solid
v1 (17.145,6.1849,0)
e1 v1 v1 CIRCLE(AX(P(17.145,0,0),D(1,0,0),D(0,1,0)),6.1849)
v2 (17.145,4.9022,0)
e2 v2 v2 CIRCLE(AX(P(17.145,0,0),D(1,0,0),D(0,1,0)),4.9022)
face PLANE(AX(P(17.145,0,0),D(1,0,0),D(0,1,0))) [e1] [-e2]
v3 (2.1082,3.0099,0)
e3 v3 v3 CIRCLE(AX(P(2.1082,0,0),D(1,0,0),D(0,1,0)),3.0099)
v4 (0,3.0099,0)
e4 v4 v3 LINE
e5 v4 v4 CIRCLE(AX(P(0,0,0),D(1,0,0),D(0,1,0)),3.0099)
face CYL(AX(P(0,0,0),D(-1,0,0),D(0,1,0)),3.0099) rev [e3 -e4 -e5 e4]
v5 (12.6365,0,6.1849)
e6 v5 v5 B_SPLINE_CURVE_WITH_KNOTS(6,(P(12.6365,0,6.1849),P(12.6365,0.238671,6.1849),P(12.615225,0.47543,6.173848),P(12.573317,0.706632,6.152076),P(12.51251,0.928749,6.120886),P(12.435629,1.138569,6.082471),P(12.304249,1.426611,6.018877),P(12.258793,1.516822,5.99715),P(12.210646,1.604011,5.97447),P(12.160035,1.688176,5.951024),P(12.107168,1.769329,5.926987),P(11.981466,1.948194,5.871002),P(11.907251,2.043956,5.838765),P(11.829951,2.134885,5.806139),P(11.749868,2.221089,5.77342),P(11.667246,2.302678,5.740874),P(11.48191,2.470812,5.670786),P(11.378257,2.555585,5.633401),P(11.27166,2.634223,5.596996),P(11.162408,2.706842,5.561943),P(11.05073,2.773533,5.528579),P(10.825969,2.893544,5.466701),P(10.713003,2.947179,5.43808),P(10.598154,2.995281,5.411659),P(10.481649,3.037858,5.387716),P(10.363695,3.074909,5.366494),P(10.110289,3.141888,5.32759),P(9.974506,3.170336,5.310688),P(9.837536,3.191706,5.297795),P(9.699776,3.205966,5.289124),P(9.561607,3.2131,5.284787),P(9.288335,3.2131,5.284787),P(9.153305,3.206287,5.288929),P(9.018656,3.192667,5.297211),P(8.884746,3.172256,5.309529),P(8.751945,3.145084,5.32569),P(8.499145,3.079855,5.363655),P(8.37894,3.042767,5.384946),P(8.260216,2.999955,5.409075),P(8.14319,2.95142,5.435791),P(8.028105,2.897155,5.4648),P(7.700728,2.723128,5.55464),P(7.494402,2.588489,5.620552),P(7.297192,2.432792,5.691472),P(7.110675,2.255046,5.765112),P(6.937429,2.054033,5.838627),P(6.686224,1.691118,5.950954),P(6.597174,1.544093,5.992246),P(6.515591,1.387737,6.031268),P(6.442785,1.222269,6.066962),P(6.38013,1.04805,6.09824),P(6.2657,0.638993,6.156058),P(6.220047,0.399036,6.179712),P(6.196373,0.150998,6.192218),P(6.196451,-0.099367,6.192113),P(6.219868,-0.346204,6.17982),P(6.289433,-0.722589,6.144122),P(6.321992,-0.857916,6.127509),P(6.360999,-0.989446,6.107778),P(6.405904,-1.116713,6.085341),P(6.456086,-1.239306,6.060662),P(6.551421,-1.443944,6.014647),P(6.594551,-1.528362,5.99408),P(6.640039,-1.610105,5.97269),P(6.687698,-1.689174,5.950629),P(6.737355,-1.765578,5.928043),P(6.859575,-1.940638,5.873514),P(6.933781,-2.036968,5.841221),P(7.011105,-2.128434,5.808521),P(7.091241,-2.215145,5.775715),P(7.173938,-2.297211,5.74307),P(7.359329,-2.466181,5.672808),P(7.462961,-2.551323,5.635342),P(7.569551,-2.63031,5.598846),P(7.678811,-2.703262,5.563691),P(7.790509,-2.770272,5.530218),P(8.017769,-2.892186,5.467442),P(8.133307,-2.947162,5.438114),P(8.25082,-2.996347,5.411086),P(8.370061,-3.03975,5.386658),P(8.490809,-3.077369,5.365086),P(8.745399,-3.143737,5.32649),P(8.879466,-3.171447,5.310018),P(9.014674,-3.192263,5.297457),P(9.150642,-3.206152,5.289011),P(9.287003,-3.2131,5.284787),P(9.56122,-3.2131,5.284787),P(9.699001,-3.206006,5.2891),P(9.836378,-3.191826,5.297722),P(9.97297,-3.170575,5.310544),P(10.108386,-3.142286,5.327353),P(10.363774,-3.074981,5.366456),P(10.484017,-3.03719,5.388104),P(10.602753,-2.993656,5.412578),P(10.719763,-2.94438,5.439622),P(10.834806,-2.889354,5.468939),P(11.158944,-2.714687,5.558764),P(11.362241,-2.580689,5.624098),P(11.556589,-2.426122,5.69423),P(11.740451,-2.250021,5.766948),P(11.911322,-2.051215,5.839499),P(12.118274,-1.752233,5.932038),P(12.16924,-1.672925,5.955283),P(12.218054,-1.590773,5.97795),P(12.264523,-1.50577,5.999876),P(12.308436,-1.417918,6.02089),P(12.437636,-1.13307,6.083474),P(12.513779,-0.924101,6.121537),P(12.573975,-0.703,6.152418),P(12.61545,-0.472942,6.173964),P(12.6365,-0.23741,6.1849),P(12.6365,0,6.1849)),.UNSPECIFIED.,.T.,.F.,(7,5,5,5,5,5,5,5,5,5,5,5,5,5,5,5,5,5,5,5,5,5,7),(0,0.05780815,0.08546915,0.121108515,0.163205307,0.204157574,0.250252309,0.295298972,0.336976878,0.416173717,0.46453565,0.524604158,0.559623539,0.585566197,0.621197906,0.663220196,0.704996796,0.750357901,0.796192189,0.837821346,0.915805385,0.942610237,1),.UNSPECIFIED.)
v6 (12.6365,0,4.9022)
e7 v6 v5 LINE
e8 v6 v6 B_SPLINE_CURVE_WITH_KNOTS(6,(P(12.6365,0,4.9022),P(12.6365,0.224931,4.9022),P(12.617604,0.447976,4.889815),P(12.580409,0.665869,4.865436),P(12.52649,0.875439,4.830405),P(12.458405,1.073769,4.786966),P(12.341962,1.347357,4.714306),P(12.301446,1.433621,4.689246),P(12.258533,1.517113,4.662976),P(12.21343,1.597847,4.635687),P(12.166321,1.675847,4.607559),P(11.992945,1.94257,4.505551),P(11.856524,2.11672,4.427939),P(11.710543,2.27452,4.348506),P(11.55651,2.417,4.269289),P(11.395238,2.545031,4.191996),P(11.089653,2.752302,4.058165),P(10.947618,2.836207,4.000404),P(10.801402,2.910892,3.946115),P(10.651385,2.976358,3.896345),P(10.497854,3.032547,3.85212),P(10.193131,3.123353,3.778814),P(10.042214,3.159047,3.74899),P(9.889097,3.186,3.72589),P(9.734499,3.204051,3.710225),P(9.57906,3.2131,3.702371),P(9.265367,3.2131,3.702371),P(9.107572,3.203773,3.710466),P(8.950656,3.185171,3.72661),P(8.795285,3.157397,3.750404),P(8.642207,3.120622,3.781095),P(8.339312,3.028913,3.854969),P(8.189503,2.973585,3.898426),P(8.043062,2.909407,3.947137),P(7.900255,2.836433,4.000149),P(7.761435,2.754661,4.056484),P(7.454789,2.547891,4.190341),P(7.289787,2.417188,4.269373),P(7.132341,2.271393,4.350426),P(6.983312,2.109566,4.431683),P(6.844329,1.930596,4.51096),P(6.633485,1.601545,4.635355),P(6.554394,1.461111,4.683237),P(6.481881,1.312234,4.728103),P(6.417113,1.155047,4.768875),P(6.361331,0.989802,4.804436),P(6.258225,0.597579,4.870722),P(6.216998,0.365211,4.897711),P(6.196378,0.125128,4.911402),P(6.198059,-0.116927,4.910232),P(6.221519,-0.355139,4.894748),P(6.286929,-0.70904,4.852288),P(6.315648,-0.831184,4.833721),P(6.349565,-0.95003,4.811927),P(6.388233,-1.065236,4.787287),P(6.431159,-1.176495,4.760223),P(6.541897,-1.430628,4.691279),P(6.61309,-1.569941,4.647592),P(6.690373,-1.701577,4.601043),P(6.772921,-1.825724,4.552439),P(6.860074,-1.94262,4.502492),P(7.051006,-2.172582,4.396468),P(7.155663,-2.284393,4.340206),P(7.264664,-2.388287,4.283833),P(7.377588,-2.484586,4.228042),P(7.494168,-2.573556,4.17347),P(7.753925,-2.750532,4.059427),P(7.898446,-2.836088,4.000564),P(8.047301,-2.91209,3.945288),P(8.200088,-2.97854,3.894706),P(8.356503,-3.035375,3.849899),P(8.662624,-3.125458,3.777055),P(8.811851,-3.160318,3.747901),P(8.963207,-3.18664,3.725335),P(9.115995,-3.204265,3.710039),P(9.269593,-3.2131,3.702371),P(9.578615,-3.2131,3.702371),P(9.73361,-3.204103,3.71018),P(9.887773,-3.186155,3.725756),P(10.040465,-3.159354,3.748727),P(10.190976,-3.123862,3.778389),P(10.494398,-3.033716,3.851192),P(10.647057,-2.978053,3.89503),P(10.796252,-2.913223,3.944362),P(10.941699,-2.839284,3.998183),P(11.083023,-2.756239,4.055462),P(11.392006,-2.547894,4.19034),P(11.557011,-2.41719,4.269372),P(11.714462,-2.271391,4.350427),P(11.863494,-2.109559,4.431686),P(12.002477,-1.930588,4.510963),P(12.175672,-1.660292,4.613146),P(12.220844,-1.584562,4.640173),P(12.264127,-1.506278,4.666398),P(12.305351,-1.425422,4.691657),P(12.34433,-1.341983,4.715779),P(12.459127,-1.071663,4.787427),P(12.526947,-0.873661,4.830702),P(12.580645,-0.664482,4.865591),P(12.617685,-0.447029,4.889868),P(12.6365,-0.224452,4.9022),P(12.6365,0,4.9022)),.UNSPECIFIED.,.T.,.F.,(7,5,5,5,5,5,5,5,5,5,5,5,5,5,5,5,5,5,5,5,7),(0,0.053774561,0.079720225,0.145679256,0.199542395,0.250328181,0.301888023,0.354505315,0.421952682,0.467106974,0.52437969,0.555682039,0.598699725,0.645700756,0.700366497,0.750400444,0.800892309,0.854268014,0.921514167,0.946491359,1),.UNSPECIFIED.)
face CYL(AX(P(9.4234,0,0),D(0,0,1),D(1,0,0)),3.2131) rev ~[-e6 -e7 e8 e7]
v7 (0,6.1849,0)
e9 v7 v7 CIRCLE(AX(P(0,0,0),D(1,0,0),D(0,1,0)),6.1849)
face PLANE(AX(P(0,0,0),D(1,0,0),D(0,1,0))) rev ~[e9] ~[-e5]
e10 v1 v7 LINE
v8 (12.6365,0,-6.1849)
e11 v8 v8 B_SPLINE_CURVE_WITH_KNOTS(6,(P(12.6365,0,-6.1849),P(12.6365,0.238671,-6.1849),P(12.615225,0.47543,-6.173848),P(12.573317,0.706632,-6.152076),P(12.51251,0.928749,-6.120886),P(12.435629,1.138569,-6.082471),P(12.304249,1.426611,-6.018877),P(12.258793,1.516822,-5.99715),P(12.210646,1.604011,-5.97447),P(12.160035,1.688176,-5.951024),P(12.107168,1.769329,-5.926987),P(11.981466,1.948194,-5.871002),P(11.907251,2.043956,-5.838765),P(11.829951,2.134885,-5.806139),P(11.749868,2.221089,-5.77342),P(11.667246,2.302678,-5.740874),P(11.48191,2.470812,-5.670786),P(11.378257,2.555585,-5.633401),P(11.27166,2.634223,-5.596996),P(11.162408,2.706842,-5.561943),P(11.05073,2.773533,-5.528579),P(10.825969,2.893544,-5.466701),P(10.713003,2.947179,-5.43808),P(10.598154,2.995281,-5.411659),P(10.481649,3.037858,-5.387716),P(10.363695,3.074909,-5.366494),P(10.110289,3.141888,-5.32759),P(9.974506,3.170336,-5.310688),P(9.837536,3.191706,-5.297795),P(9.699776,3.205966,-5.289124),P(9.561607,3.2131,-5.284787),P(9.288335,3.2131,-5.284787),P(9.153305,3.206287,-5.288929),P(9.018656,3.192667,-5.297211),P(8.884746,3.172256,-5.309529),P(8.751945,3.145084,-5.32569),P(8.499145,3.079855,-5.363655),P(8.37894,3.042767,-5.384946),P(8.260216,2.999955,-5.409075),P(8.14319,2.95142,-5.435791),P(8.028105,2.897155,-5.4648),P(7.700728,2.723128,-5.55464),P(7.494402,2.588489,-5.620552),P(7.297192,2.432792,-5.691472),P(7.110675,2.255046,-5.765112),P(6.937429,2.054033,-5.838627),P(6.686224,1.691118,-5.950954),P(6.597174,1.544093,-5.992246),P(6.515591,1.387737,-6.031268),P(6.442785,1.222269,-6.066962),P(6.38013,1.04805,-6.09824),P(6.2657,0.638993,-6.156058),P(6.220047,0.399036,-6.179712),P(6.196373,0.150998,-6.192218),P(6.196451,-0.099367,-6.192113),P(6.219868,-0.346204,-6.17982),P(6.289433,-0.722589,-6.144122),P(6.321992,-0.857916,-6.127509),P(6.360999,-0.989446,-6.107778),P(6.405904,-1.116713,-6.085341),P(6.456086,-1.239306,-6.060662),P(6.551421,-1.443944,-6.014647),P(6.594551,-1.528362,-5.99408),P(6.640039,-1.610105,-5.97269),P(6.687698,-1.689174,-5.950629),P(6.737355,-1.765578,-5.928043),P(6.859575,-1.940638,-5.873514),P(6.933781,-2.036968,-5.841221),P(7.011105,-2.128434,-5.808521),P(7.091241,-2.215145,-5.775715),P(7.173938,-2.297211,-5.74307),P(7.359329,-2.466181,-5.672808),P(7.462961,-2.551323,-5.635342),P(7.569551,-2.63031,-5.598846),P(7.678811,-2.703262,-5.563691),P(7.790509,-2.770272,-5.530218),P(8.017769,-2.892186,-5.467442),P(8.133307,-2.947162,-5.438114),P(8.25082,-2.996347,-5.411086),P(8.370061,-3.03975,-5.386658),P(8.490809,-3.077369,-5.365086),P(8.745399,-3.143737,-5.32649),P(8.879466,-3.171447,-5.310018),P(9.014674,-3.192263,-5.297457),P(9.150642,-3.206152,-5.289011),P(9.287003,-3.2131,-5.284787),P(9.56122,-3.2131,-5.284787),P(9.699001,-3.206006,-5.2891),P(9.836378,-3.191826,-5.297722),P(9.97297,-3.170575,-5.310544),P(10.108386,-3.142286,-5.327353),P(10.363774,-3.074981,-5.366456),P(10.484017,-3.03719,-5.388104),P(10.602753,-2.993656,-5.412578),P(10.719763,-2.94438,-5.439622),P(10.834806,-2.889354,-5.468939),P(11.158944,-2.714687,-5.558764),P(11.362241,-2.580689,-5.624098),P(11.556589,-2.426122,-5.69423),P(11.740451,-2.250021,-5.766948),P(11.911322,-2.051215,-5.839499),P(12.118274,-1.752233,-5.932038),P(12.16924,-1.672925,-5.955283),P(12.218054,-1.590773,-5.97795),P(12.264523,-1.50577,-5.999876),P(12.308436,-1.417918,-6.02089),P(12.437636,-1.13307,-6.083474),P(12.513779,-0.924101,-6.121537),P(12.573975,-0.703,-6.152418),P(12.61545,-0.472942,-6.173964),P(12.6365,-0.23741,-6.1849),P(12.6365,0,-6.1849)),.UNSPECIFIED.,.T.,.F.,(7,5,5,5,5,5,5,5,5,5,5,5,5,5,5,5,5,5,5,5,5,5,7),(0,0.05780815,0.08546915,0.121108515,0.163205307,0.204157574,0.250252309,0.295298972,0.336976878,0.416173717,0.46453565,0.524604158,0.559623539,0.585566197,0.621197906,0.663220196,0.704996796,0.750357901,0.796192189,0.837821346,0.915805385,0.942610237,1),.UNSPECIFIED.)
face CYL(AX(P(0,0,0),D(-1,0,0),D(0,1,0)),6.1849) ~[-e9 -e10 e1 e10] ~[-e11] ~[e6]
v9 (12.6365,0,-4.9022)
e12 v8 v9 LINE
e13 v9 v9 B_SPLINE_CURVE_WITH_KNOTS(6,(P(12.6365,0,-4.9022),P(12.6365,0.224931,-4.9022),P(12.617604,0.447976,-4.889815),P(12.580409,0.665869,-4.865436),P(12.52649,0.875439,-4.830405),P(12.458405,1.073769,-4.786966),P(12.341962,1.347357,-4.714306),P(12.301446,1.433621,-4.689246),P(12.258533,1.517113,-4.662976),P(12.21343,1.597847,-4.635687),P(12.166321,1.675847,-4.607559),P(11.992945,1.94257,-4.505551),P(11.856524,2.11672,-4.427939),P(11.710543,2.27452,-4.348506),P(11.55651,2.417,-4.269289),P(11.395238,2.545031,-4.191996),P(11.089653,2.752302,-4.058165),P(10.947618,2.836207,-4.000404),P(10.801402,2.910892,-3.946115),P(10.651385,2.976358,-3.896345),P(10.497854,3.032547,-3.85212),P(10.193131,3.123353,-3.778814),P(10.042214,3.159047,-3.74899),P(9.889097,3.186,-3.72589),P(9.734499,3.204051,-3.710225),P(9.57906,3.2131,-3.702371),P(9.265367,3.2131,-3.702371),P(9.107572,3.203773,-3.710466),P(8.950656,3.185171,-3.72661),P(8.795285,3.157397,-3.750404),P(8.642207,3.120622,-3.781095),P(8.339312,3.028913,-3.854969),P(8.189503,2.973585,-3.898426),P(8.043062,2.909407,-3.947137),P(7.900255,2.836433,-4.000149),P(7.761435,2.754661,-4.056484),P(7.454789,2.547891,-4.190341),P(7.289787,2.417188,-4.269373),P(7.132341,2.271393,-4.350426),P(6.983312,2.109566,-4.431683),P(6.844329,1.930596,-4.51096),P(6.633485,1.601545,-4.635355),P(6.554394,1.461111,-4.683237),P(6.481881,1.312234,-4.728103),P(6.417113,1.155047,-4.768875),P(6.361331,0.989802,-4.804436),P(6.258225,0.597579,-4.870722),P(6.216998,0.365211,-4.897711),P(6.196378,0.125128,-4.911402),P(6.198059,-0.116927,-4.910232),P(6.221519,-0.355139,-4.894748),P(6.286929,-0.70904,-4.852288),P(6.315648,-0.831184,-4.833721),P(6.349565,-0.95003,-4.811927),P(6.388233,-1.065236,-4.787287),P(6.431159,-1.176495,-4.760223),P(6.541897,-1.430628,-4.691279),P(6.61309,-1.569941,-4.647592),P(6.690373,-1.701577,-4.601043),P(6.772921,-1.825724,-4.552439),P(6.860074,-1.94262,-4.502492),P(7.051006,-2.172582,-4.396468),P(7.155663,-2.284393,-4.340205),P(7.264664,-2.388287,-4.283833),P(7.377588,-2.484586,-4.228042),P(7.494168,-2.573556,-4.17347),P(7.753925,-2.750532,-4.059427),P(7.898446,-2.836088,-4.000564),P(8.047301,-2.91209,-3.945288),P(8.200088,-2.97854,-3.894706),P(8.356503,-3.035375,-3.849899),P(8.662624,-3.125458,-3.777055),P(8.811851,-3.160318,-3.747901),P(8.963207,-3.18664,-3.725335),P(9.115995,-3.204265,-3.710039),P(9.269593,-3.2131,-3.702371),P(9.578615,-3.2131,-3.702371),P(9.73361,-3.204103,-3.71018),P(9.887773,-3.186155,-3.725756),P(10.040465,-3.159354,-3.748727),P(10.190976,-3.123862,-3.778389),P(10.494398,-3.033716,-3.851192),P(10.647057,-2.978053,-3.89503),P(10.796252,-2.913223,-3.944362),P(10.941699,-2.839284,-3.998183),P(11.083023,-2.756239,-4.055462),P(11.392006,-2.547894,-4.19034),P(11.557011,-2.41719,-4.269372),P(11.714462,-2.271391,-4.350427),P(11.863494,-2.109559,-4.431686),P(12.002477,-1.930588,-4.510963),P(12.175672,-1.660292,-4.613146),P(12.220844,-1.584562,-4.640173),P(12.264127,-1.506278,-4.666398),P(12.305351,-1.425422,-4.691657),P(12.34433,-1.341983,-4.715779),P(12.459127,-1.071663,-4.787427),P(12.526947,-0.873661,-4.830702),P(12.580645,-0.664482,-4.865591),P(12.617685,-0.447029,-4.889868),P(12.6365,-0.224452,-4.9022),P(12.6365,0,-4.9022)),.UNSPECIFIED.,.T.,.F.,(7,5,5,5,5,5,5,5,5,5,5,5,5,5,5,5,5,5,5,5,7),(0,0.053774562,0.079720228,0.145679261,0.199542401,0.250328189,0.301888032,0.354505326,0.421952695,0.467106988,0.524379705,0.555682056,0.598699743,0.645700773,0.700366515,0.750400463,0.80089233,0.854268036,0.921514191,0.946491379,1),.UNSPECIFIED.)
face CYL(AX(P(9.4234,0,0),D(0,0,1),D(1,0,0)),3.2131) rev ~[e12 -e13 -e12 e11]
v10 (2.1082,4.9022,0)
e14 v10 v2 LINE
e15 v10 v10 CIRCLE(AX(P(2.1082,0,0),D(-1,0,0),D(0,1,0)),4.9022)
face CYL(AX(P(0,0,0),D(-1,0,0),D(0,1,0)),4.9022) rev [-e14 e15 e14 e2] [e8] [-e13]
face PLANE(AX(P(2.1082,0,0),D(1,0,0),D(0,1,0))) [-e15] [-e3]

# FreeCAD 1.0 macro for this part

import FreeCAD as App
import Part
import Sketcher

V = App.Vector
Q = App.Units.Quantity

doc = App.newDocument("Part")
body = doc.addObject("PartDesign::Body", "Body")

# Sketch on YZ plane
sketch1 = body.newObject("Sketcher::SketchObject", "Sketch")
sketch1.AttachmentSupport = (doc.getObject("YZ_Plane"), [""])
sketch1.MapMode = "FlatFace"
sketch1.addGeometry(Part.Circle(V(0, 0, 0), V(0, 0, 1), 6.2), False)
sketch1.addGeometry(Part.Circle(V(0, 0, 0), V(0, 0, 1), 3), False)
sketch1.addConstraint(Sketcher.Constraint("Coincident", 0, 3, -1, 1))
sketch1.addConstraint(Sketcher.Constraint("Coincident", 1, 3, -1, 1))
sketch1.addConstraint(Sketcher.Constraint("Diameter", 0, Q("0.487 in")))
sketch1.addConstraint(Sketcher.Constraint("Diameter", 1, Q("0.237 in")))
pad1 = body.newObject("PartDesign::Pad", "Pad")
pad1.Profile = sketch1
pad1.Length = Q("0.083 in")

# Sketch on YZ plane
sketch2 = body.newObject("Sketcher::SketchObject", "Sketch001")
sketch2.AttachmentSupport = (doc.getObject("YZ_Plane"), [""])
sketch2.MapMode = "FlatFace"
sketch2.addGeometry(Part.Circle(V(0, 0, 0), V(0, 0, 1), 6.2), False)
sketch2.addGeometry(Part.Circle(V(0, 0, 0), V(0, 0, 1), 4.9), False)
sketch2.addConstraint(Sketcher.Constraint("Coincident", 0, 3, -1, 1))
sketch2.addConstraint(Sketcher.Constraint("Coincident", 1, 3, -1, 1))
sketch2.addConstraint(Sketcher.Constraint("Diameter", 0, Q("0.487 in")))
sketch2.addConstraint(Sketcher.Constraint("Diameter", 1, Q("0.386 in")))
pad2 = body.newObject("PartDesign::Pad", "Pad001")
pad2.Profile = sketch2
pad2.Length = Q("0.675 in")

# Sketch on XY plane
sketch3 = body.newObject("Sketcher::SketchObject", "Sketch002")
sketch3.AttachmentSupport = (doc.getObject("XY_Plane"), [""])
sketch3.MapMode = "FlatFace"
sketch3.addGeometry(Part.Circle(V(9.4, 0, 0), V(0, 0, 1), 3.2), False)
sketch3.addConstraint(Sketcher.Constraint("PointOnObject", 0, 3, -1))
sketch3.addConstraint(Sketcher.Constraint("Diameter", 0, Q("0.253 in")))
sketch3.addConstraint(Sketcher.Constraint("DistanceX", -1, 1, 0, 3, Q("0.371 in")))
pocket1 = body.newObject("PartDesign::Pocket", "Pocket")
pocket1.Profile = sketch3
pocket1.Length = Q("1 in")
pocket1.Midplane = True

doc.recompute()
